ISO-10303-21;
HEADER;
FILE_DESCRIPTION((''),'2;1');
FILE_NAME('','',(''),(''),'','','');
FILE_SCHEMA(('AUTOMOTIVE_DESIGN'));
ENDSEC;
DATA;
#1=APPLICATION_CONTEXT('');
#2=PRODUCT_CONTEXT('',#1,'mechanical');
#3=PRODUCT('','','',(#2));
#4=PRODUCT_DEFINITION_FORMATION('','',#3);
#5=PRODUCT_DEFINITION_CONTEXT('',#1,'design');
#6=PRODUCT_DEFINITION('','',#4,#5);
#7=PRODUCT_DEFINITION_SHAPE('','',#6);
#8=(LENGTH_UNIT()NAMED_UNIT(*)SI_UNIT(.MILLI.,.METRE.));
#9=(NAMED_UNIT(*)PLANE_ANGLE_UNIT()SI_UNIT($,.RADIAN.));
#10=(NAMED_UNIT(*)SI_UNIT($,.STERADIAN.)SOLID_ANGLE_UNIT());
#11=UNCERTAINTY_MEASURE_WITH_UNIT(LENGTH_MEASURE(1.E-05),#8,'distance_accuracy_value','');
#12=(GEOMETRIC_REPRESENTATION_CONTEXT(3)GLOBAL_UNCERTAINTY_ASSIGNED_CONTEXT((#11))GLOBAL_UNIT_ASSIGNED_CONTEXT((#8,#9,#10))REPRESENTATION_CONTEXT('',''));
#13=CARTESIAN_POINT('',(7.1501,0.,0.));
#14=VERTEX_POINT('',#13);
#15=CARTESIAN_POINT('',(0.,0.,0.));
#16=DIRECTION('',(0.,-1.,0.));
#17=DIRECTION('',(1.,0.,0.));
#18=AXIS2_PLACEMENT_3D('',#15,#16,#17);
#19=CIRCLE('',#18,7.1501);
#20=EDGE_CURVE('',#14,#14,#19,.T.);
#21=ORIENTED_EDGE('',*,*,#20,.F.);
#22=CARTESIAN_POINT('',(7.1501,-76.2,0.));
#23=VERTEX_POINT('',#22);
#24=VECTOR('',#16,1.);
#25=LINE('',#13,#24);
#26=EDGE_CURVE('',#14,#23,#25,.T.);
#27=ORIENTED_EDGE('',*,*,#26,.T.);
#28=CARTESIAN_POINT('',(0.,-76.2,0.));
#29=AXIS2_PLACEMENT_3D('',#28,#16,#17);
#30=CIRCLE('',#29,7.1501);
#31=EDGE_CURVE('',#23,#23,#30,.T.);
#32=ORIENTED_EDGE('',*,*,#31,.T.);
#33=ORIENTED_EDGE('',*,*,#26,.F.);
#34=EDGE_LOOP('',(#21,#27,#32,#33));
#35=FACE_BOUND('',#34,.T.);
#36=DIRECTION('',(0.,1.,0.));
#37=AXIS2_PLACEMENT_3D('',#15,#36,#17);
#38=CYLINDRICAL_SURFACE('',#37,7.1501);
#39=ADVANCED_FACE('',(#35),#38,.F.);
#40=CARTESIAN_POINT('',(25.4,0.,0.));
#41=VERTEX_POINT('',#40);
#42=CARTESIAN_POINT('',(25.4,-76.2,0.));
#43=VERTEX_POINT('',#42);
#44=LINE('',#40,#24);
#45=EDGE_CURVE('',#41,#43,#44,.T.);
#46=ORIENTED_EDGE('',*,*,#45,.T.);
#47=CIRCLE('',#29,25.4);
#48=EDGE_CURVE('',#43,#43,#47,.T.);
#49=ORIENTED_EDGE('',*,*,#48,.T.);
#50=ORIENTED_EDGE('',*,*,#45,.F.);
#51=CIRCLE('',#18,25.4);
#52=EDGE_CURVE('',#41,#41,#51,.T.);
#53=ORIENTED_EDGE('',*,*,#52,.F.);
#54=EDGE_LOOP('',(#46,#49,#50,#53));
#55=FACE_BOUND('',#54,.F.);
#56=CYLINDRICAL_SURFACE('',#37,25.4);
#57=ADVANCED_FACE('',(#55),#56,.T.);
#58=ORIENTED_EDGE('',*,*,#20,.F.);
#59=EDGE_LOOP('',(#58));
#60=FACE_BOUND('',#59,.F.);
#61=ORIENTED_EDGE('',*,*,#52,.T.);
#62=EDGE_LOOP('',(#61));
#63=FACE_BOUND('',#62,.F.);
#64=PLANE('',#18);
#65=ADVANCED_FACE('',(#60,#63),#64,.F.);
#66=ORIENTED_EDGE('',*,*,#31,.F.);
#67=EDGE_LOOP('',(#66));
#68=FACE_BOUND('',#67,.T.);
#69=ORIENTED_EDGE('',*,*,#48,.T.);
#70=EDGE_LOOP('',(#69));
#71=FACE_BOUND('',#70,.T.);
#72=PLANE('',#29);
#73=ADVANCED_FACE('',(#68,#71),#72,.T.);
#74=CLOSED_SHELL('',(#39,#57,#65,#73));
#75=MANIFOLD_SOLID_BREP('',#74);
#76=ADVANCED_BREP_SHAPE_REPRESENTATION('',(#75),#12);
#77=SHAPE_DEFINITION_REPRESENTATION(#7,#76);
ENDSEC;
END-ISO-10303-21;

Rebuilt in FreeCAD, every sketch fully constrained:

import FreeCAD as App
import Part
import Sketcher

V = App.Vector
Q = App.Units.Quantity

doc = App.newDocument("Part")
body = doc.addObject("PartDesign::Body", "Body")

sketch1 = body.newObject("Sketcher::SketchObject", "Sketch")
sketch1.AttachmentSupport = (doc.getObject("YZ_Plane"), [""])
sketch1.MapMode = "FlatFace"
sketch1.addGeometry(Part.Circle(V(0, 0, 0), V(0, 0, 1), 25), False)
sketch1.addGeometry(Part.Circle(V(0, 0, 0), V(0, 0, 1), 7), False)
sketch1.addConstraint(Sketcher.Constraint("Coincident", 0, 3, -1, 1))
sketch1.addConstraint(Sketcher.Constraint("Coincident", 1, 3, -1, 1))
sketch1.addConstraint(Sketcher.Constraint("Diameter", 0, Q("2 in")))
sketch1.addConstraint(Sketcher.Constraint("Diameter", 1, Q("0.563 in")))
pad1 = body.newObject("PartDesign::Pad", "Pad")
pad1.Profile = sketch1
pad1.Length = Q("3 in")
body2 = doc.addObject("PartDesign::Body", "Body001")

sketch2 = body2.newObject("Sketcher::SketchObject", "Sketch001")
sketch2.AttachmentSupport = (doc.getObject("XZ_Plane001"), [""])
sketch2.MapMode = "FlatFace"
sketch2.addGeometry(Part.Circle(V(0, 0, 0), V(0, 0, 1), 25), False)
sketch2.addGeometry(Part.Circle(V(0, 0, 0), V(0, 0, 1), 7), False)
sketch2.addConstraint(Sketcher.Constraint("Coincident", 0, 3, -1, 1))
sketch2.addConstraint(Sketcher.Constraint("Coincident", 1, 3, -1, 1))
sketch2.addConstraint(Sketcher.Constraint("Diameter", 0, Q("2 in")))
sketch2.addConstraint(Sketcher.Constraint("Diameter", 1, Q("0.563 in")))
pad2 = body2.newObject("PartDesign::Pad", "Pad001")
pad2.Profile = sketch2
pad2.Length = Q("3 in")
body.Visibility = False

doc.recompute()
